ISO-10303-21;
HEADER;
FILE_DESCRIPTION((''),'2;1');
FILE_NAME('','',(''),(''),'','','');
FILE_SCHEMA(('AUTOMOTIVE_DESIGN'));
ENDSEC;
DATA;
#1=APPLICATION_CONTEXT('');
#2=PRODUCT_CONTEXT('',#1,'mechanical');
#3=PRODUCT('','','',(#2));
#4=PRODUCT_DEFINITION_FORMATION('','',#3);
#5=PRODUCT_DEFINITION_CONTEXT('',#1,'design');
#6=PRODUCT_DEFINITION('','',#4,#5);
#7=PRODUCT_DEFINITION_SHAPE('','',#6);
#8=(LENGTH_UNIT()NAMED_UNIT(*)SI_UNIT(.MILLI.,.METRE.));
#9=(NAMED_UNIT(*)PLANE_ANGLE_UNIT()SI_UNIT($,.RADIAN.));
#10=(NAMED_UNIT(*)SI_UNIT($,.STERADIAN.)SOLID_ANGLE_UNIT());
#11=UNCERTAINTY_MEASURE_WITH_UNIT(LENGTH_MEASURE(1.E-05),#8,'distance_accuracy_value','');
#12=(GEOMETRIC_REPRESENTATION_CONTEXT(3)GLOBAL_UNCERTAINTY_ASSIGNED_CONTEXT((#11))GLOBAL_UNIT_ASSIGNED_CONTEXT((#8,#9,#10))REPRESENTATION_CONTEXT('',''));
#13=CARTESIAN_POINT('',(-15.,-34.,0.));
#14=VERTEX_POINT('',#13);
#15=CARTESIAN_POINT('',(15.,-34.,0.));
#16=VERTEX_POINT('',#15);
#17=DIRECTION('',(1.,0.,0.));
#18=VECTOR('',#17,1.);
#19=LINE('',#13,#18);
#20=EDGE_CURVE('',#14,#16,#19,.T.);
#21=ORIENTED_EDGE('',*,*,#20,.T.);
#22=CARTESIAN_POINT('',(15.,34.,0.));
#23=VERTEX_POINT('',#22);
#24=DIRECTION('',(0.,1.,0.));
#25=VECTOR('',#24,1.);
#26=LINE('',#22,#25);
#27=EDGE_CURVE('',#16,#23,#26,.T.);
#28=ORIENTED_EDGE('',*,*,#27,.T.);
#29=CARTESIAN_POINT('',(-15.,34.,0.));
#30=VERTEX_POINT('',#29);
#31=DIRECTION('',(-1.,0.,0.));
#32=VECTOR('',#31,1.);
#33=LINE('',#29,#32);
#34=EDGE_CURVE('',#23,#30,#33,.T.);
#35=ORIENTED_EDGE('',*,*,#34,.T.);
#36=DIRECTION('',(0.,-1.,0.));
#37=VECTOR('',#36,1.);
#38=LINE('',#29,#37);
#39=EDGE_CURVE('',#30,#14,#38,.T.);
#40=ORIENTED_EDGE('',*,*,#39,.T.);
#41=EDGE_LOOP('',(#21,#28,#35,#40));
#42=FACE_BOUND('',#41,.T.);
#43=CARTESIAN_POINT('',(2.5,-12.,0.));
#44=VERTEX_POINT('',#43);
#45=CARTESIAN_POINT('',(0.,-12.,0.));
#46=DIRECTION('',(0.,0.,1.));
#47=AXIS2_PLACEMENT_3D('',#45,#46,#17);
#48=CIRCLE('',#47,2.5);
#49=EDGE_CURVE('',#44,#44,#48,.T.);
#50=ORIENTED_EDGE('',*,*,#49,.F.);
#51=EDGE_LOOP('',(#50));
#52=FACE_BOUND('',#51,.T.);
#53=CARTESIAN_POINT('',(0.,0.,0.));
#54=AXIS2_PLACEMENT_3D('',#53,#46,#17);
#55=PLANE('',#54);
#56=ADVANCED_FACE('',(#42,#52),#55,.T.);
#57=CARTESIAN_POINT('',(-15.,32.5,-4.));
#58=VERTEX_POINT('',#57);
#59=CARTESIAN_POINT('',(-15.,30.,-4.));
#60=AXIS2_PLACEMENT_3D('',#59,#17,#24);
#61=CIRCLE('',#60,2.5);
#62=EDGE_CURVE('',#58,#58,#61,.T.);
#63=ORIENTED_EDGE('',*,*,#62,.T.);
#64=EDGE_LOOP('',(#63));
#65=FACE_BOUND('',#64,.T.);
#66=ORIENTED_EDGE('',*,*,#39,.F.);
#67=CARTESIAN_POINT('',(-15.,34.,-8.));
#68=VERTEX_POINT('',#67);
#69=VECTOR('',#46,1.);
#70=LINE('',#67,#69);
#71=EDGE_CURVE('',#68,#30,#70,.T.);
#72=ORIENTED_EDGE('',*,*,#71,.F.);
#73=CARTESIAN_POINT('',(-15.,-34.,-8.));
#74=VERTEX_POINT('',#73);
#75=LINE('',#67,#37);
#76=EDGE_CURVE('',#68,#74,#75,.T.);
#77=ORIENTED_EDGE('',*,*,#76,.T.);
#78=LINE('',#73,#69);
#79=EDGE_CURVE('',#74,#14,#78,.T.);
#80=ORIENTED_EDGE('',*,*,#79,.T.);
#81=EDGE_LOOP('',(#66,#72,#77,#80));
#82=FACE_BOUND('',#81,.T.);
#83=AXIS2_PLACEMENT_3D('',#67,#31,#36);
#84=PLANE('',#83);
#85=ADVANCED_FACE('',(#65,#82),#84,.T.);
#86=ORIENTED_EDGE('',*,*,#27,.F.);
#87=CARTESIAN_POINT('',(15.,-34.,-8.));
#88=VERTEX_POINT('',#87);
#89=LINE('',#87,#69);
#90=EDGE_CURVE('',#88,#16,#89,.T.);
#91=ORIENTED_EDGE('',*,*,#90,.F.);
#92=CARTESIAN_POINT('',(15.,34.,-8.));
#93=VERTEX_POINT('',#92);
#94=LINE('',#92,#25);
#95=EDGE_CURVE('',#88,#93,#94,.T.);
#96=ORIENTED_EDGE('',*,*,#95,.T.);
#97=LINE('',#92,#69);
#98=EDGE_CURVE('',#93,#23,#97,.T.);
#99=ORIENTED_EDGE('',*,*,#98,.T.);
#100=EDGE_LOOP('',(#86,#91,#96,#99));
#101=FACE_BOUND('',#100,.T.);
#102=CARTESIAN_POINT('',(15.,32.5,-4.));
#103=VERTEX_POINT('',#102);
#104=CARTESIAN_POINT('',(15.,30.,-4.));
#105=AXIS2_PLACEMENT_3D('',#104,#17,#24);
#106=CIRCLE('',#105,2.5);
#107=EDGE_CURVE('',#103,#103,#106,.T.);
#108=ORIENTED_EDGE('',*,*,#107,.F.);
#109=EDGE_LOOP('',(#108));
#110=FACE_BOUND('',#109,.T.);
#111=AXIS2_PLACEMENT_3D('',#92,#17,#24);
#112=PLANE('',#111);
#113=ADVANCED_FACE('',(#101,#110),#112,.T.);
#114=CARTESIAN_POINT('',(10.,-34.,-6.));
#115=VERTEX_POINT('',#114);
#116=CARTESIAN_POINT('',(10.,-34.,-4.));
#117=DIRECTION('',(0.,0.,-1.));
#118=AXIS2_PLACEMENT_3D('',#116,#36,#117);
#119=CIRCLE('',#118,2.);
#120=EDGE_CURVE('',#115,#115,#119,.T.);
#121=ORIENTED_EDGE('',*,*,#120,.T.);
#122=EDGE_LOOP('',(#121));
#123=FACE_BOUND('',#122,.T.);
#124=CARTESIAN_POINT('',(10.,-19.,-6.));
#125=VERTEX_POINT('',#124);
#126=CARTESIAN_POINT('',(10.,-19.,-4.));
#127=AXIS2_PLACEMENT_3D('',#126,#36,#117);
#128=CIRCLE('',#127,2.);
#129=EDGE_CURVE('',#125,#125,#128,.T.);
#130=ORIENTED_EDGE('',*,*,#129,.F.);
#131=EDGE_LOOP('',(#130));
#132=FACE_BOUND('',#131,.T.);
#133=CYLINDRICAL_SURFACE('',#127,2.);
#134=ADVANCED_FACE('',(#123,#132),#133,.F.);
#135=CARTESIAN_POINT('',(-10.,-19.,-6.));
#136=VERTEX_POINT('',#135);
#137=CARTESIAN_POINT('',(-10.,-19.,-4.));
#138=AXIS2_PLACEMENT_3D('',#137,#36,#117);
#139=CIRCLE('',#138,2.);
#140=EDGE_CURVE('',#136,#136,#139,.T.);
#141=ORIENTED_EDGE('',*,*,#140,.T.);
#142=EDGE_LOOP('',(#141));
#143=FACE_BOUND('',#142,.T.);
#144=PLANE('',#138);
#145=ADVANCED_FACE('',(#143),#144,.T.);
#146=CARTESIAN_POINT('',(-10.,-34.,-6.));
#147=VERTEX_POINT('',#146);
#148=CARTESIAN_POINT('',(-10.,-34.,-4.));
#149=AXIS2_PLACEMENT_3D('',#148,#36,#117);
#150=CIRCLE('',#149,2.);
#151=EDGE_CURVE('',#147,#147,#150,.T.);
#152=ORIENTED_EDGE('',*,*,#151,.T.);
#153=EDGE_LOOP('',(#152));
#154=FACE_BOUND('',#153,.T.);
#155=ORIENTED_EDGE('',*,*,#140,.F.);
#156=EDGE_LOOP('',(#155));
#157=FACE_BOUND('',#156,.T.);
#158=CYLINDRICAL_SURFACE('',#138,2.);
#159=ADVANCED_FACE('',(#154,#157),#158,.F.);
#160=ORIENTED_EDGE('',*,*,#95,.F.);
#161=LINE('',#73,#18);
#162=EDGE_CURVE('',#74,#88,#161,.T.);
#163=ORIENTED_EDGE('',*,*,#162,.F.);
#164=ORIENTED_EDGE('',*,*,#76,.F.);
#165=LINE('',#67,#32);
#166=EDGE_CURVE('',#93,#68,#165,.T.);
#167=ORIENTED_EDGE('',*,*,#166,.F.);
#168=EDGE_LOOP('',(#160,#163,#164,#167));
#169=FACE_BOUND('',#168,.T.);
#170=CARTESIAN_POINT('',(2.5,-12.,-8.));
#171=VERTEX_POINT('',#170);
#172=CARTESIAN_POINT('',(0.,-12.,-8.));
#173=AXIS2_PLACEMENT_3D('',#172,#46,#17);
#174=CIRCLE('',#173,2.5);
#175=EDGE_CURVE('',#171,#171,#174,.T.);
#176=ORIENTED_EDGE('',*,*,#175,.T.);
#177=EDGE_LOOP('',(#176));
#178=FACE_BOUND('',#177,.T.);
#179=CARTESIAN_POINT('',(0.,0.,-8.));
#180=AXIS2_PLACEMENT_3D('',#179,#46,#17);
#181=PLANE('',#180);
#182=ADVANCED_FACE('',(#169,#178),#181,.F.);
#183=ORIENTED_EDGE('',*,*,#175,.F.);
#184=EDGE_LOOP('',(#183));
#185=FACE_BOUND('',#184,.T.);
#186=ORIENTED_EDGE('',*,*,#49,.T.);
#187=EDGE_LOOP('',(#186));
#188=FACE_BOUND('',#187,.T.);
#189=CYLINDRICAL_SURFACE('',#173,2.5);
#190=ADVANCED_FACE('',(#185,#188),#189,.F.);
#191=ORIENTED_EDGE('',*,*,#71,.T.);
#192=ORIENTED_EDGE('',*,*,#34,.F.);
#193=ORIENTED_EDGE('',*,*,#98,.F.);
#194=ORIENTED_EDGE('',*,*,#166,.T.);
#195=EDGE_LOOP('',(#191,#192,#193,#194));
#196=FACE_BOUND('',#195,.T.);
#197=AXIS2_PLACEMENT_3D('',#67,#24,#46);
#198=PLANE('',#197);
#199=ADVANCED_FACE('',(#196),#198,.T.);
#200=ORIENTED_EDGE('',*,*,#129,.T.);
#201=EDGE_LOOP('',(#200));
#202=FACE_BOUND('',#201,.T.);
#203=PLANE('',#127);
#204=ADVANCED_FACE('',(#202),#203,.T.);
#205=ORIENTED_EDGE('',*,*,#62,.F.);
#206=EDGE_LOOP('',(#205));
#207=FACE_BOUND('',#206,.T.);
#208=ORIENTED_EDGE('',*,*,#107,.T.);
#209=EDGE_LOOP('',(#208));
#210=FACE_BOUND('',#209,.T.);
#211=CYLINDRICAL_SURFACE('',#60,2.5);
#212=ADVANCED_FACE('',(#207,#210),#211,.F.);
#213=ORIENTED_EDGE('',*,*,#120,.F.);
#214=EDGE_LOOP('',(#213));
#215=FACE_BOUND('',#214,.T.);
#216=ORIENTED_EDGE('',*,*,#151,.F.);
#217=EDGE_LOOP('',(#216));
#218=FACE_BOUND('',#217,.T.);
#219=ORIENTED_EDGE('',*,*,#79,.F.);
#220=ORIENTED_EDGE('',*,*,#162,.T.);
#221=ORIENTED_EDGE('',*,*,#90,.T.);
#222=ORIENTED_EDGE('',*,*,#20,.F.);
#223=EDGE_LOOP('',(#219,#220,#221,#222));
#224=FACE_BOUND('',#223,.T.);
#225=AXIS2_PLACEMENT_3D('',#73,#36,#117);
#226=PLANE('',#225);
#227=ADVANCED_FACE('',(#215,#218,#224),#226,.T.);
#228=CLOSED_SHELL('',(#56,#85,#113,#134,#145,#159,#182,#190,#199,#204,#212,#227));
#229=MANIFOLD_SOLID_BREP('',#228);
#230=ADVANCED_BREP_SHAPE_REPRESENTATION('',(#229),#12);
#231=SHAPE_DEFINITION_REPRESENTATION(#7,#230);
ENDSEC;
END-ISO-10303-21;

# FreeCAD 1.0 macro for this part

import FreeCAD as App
import Part
import Sketcher
from FreeCAD import Vector


def add_polygon(sketch, points):
    """Adds a closed chain of lines whose ends are joined by coincident constraints."""
    first, n = sketch.GeometryCount, len(points)
    for a, b in zip(points, points[1:] + points[:1]):
        sketch.addGeometry(Part.LineSegment(App.Vector(*a, 0), App.Vector(*b, 0)), False)
    for i in range(n):
        sketch.addConstraint(Sketcher.Constraint("Coincident", first + i, 2, first + (i + 1) % n, 1))

doc = App.newDocument("Part")
params = doc.addObject("Spreadsheet::Sheet", "Params")
for row, (alias, value) in enumerate([
    ("sketch1_width", "30 mm"),
    ("sketch1_height", "68 mm"),
    ("pad1_length", "8 mm"),
    ("sketch2_diameter", "5 mm"),
    ("sketch3_diameter", "4 mm"),
    ("pocket2_length", "15 mm"),
    ("sketch4_diameter", "5 mm"),
], start=1):
    params.set(f"A{row}", alias)
    params.set(f"B{row}", "=" + value)
    params.setAlias(f"B{row}", alias)

body = doc.addObject("PartDesign::Body", "Body")

# Sketch on XY plane
sketch1 = body.newObject("Sketcher::SketchObject", "Sketch")
sketch1.AttachmentSupport = (doc.getObject("XY_Plane"), [""])
sketch1.MapMode = "FlatFace"
add_polygon(sketch1, [(-15, 34), (-15, -34), (15, -34), (15, 34)])  # lines 0-3
sketch1.addConstraint([
    Sketcher.Constraint("Vertical", 0),
    Sketcher.Constraint("Horizontal", 1),
    Sketcher.Constraint("Vertical", 2),
    Sketcher.Constraint("Horizontal", 3),
    Sketcher.Constraint("Symmetric", 0, 2, 2, 2, -1, 1),
    Sketcher.Constraint("DistanceX", 1, 1, 1, 2, 30.0),
    Sketcher.Constraint("DistanceY", 0, 2, 0, 1, 68.0),
])
sketch1.setExpression("Constraints[9]", "Params.sketch1_width")
sketch1.setExpression("Constraints[10]", "Params.sketch1_height")
pad1 = body.newObject("PartDesign::Pad", "Pad")
pad1.Profile = sketch1
pad1.setExpression("Length", "Params.pad1_length")
pad1.Reversed = True

# Sketch on YZ plane
sketch2 = body.newObject("Sketcher::SketchObject", "Sketch001")
sketch2.AttachmentSupport = (doc.getObject("YZ_Plane"), [""])
sketch2.MapMode = "FlatFace"
sketch2.AttachmentOffset = App.Placement(Vector(0, 0, 15), App.Rotation())
sketch2.addGeometry(Part.Circle(Vector(30, -4, 0), Vector(0, 0, 1), 2.5), False)
sketch2.addConstraint([
    Sketcher.Constraint("Diameter", 0, 5.0),
    Sketcher.Constraint("DistanceX", -1, 1, 0, 3, 30.0),
    Sketcher.Constraint("DistanceY", 0, 3, -1, 1, 4.0),
])
sketch2.setExpression("Constraints[0]", "Params.sketch2_diameter")
pocket1 = body.newObject("PartDesign::Pocket", "Pocket")
pocket1.Profile = sketch2
pocket1.Type = "ThroughAll"

# Sketch on XZ plane
sketch3 = body.newObject("Sketcher::SketchObject", "Sketch002")
sketch3.AttachmentSupport = (doc.getObject("XZ_Plane"), [""])
sketch3.MapMode = "FlatFace"
sketch3.AttachmentOffset = App.Placement(Vector(0, 0, 34), App.Rotation())
sketch3.addGeometry([
    Part.Circle(Vector(-10, -4, 0), Vector(0, 0, 1), 2),
    Part.Circle(Vector(10, -4, 0), Vector(0, 0, 1), 2),
], False)
sketch3.addConstraint([
    Sketcher.Constraint("Equal", 0, 1),
    Sketcher.Constraint("Symmetric", 0, 3, 1, 3, -2),
    Sketcher.Constraint("Diameter", 0, 4.0),
    Sketcher.Constraint("DistanceX", 0, 3, -1, 1, 10.0),
    Sketcher.Constraint("DistanceY", 0, 3, -1, 1, 4.0),
])
sketch3.setExpression("Constraints[2]", "Params.sketch3_diameter")
pocket2 = body.newObject("PartDesign::Pocket", "Pocket001")
pocket2.Profile = sketch3
pocket2.setExpression("Length", "Params.pocket2_length")

# Sketch on XY plane
sketch4 = body.newObject("Sketcher::SketchObject", "Sketch003")
sketch4.AttachmentSupport = (doc.getObject("XY_Plane"), [""])
sketch4.MapMode = "FlatFace"
sketch4.addGeometry(Part.Circle(Vector(0, -12, 0), Vector(0, 0, 1), 2.5), False)
sketch4.addConstraint([
    Sketcher.Constraint("PointOnObject", 0, 3, -2),
    Sketcher.Constraint("Diameter", 0, 5.0),
    Sketcher.Constraint("DistanceY", 0, 3, -1, 1, 12.0),
])
sketch4.setExpression("Constraints[1]", "Params.sketch4_diameter")
pocket3 = body.newObject("PartDesign::Pocket", "Pocket002")
pocket3.Profile = sketch4
pocket3.Type = "ThroughAll"

doc.recompute()
